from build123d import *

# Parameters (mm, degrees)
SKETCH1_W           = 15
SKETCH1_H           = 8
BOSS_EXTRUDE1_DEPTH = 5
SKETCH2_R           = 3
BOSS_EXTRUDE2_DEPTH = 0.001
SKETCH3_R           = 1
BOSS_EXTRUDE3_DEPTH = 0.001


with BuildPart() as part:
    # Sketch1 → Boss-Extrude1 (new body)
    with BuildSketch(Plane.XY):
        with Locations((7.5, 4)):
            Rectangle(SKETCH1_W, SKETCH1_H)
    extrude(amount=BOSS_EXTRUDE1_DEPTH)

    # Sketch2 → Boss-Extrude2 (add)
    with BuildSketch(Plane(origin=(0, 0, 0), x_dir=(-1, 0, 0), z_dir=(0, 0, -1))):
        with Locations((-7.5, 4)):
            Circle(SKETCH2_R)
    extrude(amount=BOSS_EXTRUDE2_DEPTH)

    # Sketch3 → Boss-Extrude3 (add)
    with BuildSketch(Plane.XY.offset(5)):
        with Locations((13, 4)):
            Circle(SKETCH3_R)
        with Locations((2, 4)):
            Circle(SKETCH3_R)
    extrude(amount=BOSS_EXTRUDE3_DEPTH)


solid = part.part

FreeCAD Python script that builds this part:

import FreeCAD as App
import Part
import Sketcher
Q = App.Units.Quantity


def add_polygon(sketch, points):
    """Adds a closed chain of lines whose ends are joined by coincident constraints."""
    first, n = sketch.GeometryCount, len(points)
    for a, b in zip(points, points[1:] + points[:1]):
        sketch.addGeometry(Part.LineSegment(App.Vector(*a, 0), App.Vector(*b, 0)), False)
    for i in range(n):
        sketch.addConstraint(Sketcher.Constraint("Coincident", first + i, 2, first + (i + 1) % n, 1))

doc = App.newDocument("Part")
params = doc.addObject("Spreadsheet::Sheet", "Params")
for row, (alias, value) in enumerate([
    ("sketch1_width", "15 mm"),
    ("sketch1_height", "8 mm"),
    ("pad1_length", "5 mm"),
    ("sketch2_diameter", "6 mm"),
    ("pad2_length", "0.001 mm"),
    ("sketch3_diameter", "2 mm"),
    ("pad3_length", "0.001 mm"),
], start=1):
    params.set(f"A{row}", alias)
    params.set(f"B{row}", "=" + value)
    params.setAlias(f"B{row}", alias)

body = doc.addObject("PartDesign::Body", "Body")

# Sketch on XY plane
sketch1 = body.newObject("Sketcher::SketchObject", "Sketch")
sketch1.AttachmentSupport = (doc.getObject("XY_Plane"), [""])
sketch1.MapMode = "FlatFace"
add_polygon(sketch1, [(0, 8), (0, 0), (15, 0), (15, 8)])  # lines 0-3
sketch1.addConstraint(Sketcher.Constraint("Vertical", 0))
sketch1.addConstraint(Sketcher.Constraint("Horizontal", 1))
sketch1.addConstraint(Sketcher.Constraint("Vertical", 2))
sketch1.addConstraint(Sketcher.Constraint("Horizontal", 3))
sketch1.addConstraint(Sketcher.Constraint("Coincident", 0, 2, -1, 1))
sketch1.addConstraint(Sketcher.Constraint("DistanceX", 1, 1, 1, 2, Q("15 mm")))
sketch1.addConstraint(Sketcher.Constraint("DistanceY", 0, 2, 0, 1, Q("8 mm")))
sketch1.setExpression("Constraints[9]", "Params.sketch1_width")
sketch1.setExpression("Constraints[10]", "Params.sketch1_height")
pad1 = body.newObject("PartDesign::Pad", "Pad")
pad1.Profile = sketch1
pad1.setExpression("Length", "Params.pad1_length")

# Sketch on XY plane
sketch2 = body.newObject("Sketcher::SketchObject", "Sketch001")
sketch2.AttachmentSupport = (doc.getObject("XY_Plane"), [""])
sketch2.MapMode = "FlatFace"
sketch2.addGeometry(Part.Circle(App.Vector(7.5, 4, 0), App.Vector(0, 0, 1), 3), False)
sketch2.addConstraint(Sketcher.Constraint("Diameter", 0, Q("6 mm")))
sketch2.addConstraint(Sketcher.Constraint("DistanceY", -1, 1, 0, 3, Q("4 mm")))
sketch2.addConstraint(Sketcher.Constraint("DistanceX", -1, 1, 0, 3, Q("7.5 mm")))
sketch2.setExpression("Constraints[0]", "Params.sketch2_diameter")
pad2 = body.newObject("PartDesign::Pad", "Pad001")
pad2.Profile = sketch2
pad2.setExpression("Length", "Params.pad2_length")
pad2.Reversed = True

# Sketch on XY plane
sketch3 = body.newObject("Sketcher::SketchObject", "Sketch002")
sketch3.AttachmentSupport = (doc.getObject("XY_Plane"), [""])
sketch3.MapMode = "FlatFace"
sketch3.AttachmentOffset = App.Placement(App.Vector(0, 0, 5), App.Rotation())
sketch3.addGeometry(Part.Circle(App.Vector(13, 4, 0), App.Vector(0, 0, 1), 1), False)
sketch3.addGeometry(Part.Circle(App.Vector(2, 4, 0), App.Vector(0, 0, 1), 1), False)
sketch3.addConstraint(Sketcher.Constraint("Equal", 0, 1))
sketch3.addConstraint(Sketcher.Constraint("Horizontal", 0, 3, 1, 3))
sketch3.addConstraint(Sketcher.Constraint("Diameter", 0, Q("2 mm")))
sketch3.addConstraint(Sketcher.Constraint("DistanceX", -1, 1, 0, 3, Q("13 mm")))
sketch3.addConstraint(Sketcher.Constraint("DistanceY", -1, 1, 0, 3, Q("4 mm")))
sketch3.addConstraint(Sketcher.Constraint("DistanceX", -1, 1, 1, 3, Q("2 mm")))
sketch3.setExpression("Constraints[2]", "Params.sketch3_diameter")
pad3 = body.newObject("PartDesign::Pad", "Pad002")
pad3.Profile = sketch3
pad3.setExpression("Length", "Params.pad3_length")

doc.recompute()
